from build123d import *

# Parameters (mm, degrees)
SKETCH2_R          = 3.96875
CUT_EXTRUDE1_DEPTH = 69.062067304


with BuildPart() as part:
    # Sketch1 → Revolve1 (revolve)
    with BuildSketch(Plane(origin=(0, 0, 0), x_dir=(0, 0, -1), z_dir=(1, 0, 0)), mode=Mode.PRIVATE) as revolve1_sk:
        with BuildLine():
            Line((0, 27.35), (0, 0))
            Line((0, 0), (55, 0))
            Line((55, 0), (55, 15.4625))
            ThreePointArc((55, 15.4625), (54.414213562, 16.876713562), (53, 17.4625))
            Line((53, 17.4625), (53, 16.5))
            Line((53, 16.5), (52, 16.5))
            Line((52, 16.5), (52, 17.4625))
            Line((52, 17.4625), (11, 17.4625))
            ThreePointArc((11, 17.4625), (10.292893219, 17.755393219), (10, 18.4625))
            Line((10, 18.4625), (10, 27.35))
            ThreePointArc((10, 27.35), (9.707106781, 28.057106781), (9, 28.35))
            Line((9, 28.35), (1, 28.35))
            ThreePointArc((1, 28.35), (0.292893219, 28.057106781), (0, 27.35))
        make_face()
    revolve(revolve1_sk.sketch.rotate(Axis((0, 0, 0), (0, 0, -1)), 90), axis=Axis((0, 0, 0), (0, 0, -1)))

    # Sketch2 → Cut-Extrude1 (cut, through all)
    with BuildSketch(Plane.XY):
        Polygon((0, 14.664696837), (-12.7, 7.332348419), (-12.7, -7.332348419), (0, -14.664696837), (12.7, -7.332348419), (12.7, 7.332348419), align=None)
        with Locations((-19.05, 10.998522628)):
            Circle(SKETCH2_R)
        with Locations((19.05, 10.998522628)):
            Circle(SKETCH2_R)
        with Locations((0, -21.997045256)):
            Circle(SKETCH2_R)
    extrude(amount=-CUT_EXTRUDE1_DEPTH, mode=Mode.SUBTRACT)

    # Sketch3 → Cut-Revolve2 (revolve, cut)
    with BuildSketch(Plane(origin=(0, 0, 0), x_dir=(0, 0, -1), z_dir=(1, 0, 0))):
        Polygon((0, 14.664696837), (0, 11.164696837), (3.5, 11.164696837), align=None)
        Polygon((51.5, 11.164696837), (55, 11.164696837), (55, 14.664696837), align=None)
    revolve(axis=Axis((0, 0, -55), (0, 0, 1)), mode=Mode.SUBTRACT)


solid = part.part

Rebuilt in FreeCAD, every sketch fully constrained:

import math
import FreeCAD as App
import Part
import Sketcher

V = App.Vector
Q = App.Units.Quantity

doc = App.newDocument("Part")
body = doc.addObject("PartDesign::Body", "Body")

# Sketch on YZ plane
sketch1 = body.newObject("Sketcher::SketchObject", "Sketch")
sketch1.AttachmentSupport = (doc.getObject("YZ_Plane"), [""])
sketch1.MapMode = "FlatFace"
sketch1.addGeometry(Part.LineSegment(V(27.4, 0, 0), V(0, 0, 0)), False)
sketch1.addGeometry(Part.LineSegment(V(0, 0, 0), V(0, -55, 0)), False)
sketch1.addGeometry(Part.LineSegment(V(0, -55, 0), V(15.5, -55, 0)), False)
sketch1.addGeometry(Part.ArcOfCircle(Part.Circle(V(15.5, -53, 0), V(0, 0, 1), 2), math.radians(-90), math.radians(0)), False)
sketch1.addGeometry(Part.LineSegment(V(17.5, -53, 0), V(16.5, -53, 0)), False)
sketch1.addGeometry(Part.LineSegment(V(16.5, -53, 0), V(16.5, -52, 0)), False)
sketch1.addGeometry(Part.LineSegment(V(16.5, -52, 0), V(17.5, -52, 0)), False)
sketch1.addGeometry(Part.LineSegment(V(17.5, -52, 0), V(17.5, -11, 0)), False)
sketch1.addGeometry(Part.ArcOfCircle(Part.Circle(V(18.5, -11, 0), V(0, 0, 1), 1), math.radians(90), math.radians(180)), False)
sketch1.addGeometry(Part.LineSegment(V(18.5, -10, 0), V(27.4, -10, 0)), False)
sketch1.addGeometry(Part.ArcOfCircle(Part.Circle(V(27.3, -9, 0), V(0, 0, 1), 1), math.radians(-90), math.radians(0)), False)
sketch1.addGeometry(Part.LineSegment(V(28.4, -9, 0), V(28.4, -1, 0)), False)
sketch1.addGeometry(Part.ArcOfCircle(Part.Circle(V(27.3, -1, 0), V(0, 0, 1), 1), math.radians(0), math.radians(90)), False)
sketch1.addConstraint(Sketcher.Constraint("Coincident", 0, 2, 1, 1))
sketch1.addConstraint(Sketcher.Constraint("Coincident", 1, 2, 2, 1))
sketch1.addConstraint(Sketcher.Constraint("Tangent", 2, 2, 3, 1))
sketch1.addConstraint(Sketcher.Constraint("Coincident", 3, 2, 4, 1))
sketch1.addConstraint(Sketcher.Constraint("Coincident", 4, 2, 5, 1))
sketch1.addConstraint(Sketcher.Constraint("Coincident", 5, 2, 6, 1))
sketch1.addConstraint(Sketcher.Constraint("Coincident", 6, 2, 7, 1))
sketch1.addConstraint(Sketcher.Constraint("Tangent", 7, 2, 8, 2))
sketch1.addConstraint(Sketcher.Constraint("Tangent", 8, 1, 9, 1))
sketch1.addConstraint(Sketcher.Constraint("Tangent", 9, 2, 10, 1))
sketch1.addConstraint(Sketcher.Constraint("Tangent", 10, 2, 11, 1))
sketch1.addConstraint(Sketcher.Constraint("Tangent", 11, 2, 12, 1))
sketch1.addConstraint(Sketcher.Constraint("Tangent", 12, 2, 0, 1))
sketch1.addConstraint(Sketcher.Constraint("Horizontal", 0))
sketch1.addConstraint(Sketcher.Constraint("Vertical", 1))
sketch1.addConstraint(Sketcher.Constraint("Horizontal", 2))
sketch1.addConstraint(Sketcher.Constraint("Horizontal", 4))
sketch1.addConstraint(Sketcher.Constraint("Vertical", 5))
sketch1.addConstraint(Sketcher.Constraint("Horizontal", 6))
sketch1.addConstraint(Sketcher.Constraint("Vertical", 7))
sketch1.addConstraint(Sketcher.Constraint("Horizontal", 9))
sketch1.addConstraint(Sketcher.Constraint("Vertical", 11))
sketch1.addConstraint(Sketcher.Constraint("Coincident", 0, 2, -1, 1))
sketch1.addConstraint(Sketcher.Constraint("Equal", 8, 10))
sketch1.addConstraint(Sketcher.Constraint("Equal", 10, 12))
sketch1.addConstraint(Sketcher.Constraint("Vertical", 3, 2, 6, 2))
sketch1.addConstraint(Sketcher.Constraint("Radius", 3, Q("2 mm")))
sketch1.addConstraint(Sketcher.Constraint("Radius", 8, Q("1 mm")))
sketch1.addConstraint(Sketcher.Constraint("DistanceY", 1, 2, 1, 1, Q("55 mm")))
sketch1.addConstraint(Sketcher.Constraint("DistanceY", 5, 1, 5, 2, Q("1 mm")))
sketch1.addConstraint(Sketcher.Constraint("DistanceY", 7, 1, 7, 2, Q("41 mm")))
sketch1.addConstraint(Sketcher.Constraint("DistanceY", 11, 1, 11, 2, Q("8 mm")))
sketch1.addConstraint(Sketcher.Constraint("DistanceX", 0, 2, 0, 1, Q("27.35 mm")))
sketch1.addConstraint(Sketcher.Constraint("DistanceX", -1, 1, 4, 2, Q("16.5 mm")))
sketch1.addConstraint(Sketcher.Constraint("DistanceX", 2, 1, 2, 2, Q("15.4625 mm")))
revolution = body.newObject("PartDesign::Revolution", "Revolution")
revolution.Profile = sketch1
revolution.ReferenceAxis = (sketch1, ["V_Axis"])
revolution.Angle = 360

# Sketch on XY plane
sketch2 = body.newObject("Sketcher::SketchObject", "Sketch001")
sketch2.AttachmentSupport = (doc.getObject("XY_Plane"), [""])
sketch2.MapMode = "FlatFace"
sketch2.addGeometry(Part.LineSegment(V(0, 14.7, 0), V(-12.7, 7.3, 0)), False)
sketch2.addGeometry(Part.LineSegment(V(-12.7, 7.3, 0), V(-12.7, -7.3, 0)), False)
sketch2.addGeometry(Part.LineSegment(V(-12.7, -7.3, 0), V(0, -14.7, 0)), False)
sketch2.addGeometry(Part.LineSegment(V(0, -14.7, 0), V(12.7, -7.3, 0)), False)
sketch2.addGeometry(Part.LineSegment(V(12.7, -7.3, 0), V(12.7, 7.3, 0)), False)
sketch2.addGeometry(Part.LineSegment(V(12.7, 7.3, 0), V(0, 14.7, 0)), False)
sketch2.addGeometry(Part.Circle(V(-19.1, 11, 0), V(0, 0, 1), 4), False)
sketch2.addGeometry(Part.Circle(V(19.1, 11, 0), V(0, 0, 1), 4), False)
sketch2.addGeometry(Part.Circle(V(0, -22, 0), V(0, 0, 1), 4), False)
sketch2.addConstraint(Sketcher.Constraint("Coincident", 0, 2, 1, 1))
sketch2.addConstraint(Sketcher.Constraint("Coincident", 1, 2, 2, 1))
sketch2.addConstraint(Sketcher.Constraint("Coincident", 2, 2, 3, 1))
sketch2.addConstraint(Sketcher.Constraint("Coincident", 3, 2, 4, 1))
sketch2.addConstraint(Sketcher.Constraint("Coincident", 4, 2, 5, 1))
sketch2.addConstraint(Sketcher.Constraint("Coincident", 5, 2, 0, 1))
sketch2.addConstraint(Sketcher.Constraint("Vertical", 1))
sketch2.addConstraint(Sketcher.Constraint("Vertical", 4))
sketch2.addConstraint(Sketcher.Constraint("Equal", 6, 7))
sketch2.addConstraint(Sketcher.Constraint("Equal", 7, 8))
sketch2.addConstraint(Sketcher.Constraint("Symmetric", 0, 2, 3, 2, -1, 1))
sketch2.addConstraint(Sketcher.Constraint("Symmetric", 2, 2, 5, 2, -1, 1))
sketch2.addConstraint(Sketcher.Constraint("Symmetric", 6, 3, 7, 3, -2))
sketch2.addConstraint(Sketcher.Constraint("PointOnObject", 8, 3, -2))
sketch2.addConstraint(Sketcher.Constraint("PointOnObject", 2, 2, -2))
sketch2.addConstraint(Sketcher.Constraint("Parallel", 2, 5))
sketch2.addConstraint(Sketcher.Constraint("Horizontal", 1, 2, 3, 2))
sketch2.addConstraint(Sketcher.Constraint("Angle", 0, Q("-150 deg")))
sketch2.addConstraint(Sketcher.Constraint("Diameter", 6, Q("7.9375 mm")))
sketch2.addConstraint(Sketcher.Constraint("DistanceX", 0, 2, -1, 1, Q("12.7 mm")))
sketch2.addConstraint(Sketcher.Constraint("DistanceX", 6, 3, 7, 3, Q("38.1 mm")))
sketch2.addConstraint(Sketcher.Constraint("DistanceY", 1, 2, 1, 1, Q("14.664697 mm")))
sketch2.addConstraint(Sketcher.Constraint("DistanceY", 1, 2, 6, 3, Q("18.330871 mm")))
sketch2.addConstraint(Sketcher.Constraint("DistanceY", 8, 3, 2, 2, Q("7.332348 mm")))
pocket1 = body.newObject("PartDesign::Pocket", "Pocket")
pocket1.Profile = sketch2
pocket1.Type = "ThroughAll"

# Sketch on YZ plane
sketch3 = body.newObject("Sketcher::SketchObject", "Sketch002")
sketch3.AttachmentSupport = (doc.getObject("YZ_Plane"), [""])
sketch3.MapMode = "FlatFace"
sketch3.addGeometry(Part.LineSegment(V(14.7, 0, 0), V(11.2, 0, 0)), False)
sketch3.addGeometry(Part.LineSegment(V(11.2, 0, 0), V(11.2, -3.5, 0)), False)
sketch3.addGeometry(Part.LineSegment(V(11.2, -3.5, 0), V(14.7, 0, 0)), False)
sketch3.addGeometry(Part.LineSegment(V(11.2, -51.5, 0), V(11.2, -55, 0)), False)
sketch3.addGeometry(Part.LineSegment(V(11.2, -55, 0), V(14.7, -55, 0)), False)
sketch3.addGeometry(Part.LineSegment(V(14.7, -55, 0), V(11.2, -51.5, 0)), False)
sketch3.addConstraint(Sketcher.Constraint("Coincident", 0, 2, 1, 1))
sketch3.addConstraint(Sketcher.Constraint("Coincident", 1, 2, 2, 1))
sketch3.addConstraint(Sketcher.Constraint("Coincident", 2, 2, 0, 1))
sketch3.addConstraint(Sketcher.Constraint("Coincident", 3, 2, 4, 1))
sketch3.addConstraint(Sketcher.Constraint("Coincident", 4, 2, 5, 1))
sketch3.addConstraint(Sketcher.Constraint("Coincident", 5, 2, 3, 1))
sketch3.addConstraint(Sketcher.Constraint("Horizontal", 0))
sketch3.addConstraint(Sketcher.Constraint("Vertical", 1))
sketch3.addConstraint(Sketcher.Constraint("Vertical", 3))
sketch3.addConstraint(Sketcher.Constraint("Horizontal", 4))
sketch3.addConstraint(Sketcher.Constraint("PointOnObject", 0, 2, -1))
sketch3.addConstraint(Sketcher.Constraint("Perpendicular", 2, 5))
sketch3.addConstraint(Sketcher.Constraint("Vertical", 1, 2, 3, 2))
sketch3.addConstraint(Sketcher.Constraint("Vertical", 2, 2, 4, 2))
sketch3.addConstraint(Sketcher.Constraint("Equal", 4, 1))
sketch3.addConstraint(Sketcher.Constraint("DistanceX", 0, 2, 0, 1, Q("3.5 mm")))
sketch3.addConstraint(Sketcher.Constraint("DistanceY", 3, 2, -1, 1, Q("55 mm")))
sketch3.addConstraint(Sketcher.Constraint("DistanceX", -1, 1, 0, 2, Q("11.164697 mm")))
groove = body.newObject("PartDesign::Groove", "Groove")
groove.Profile = sketch3
groove.ReferenceAxis = (sketch3, ["V_Axis"])
groove.Angle = 360

doc.recompute()
